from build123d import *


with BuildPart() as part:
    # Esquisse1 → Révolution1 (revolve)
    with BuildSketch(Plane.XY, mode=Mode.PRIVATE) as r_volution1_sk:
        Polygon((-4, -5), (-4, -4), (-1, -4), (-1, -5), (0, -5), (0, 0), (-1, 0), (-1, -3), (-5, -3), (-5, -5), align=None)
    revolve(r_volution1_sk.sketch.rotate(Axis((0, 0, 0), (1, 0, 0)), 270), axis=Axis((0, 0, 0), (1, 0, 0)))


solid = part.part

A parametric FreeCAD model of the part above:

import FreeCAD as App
import Part
import Sketcher
Q = App.Units.Quantity

doc = App.newDocument("Part")
params = doc.addObject("Spreadsheet::Sheet", "Params")
for row, (alias, value) in enumerate([
    ("sketch1_width", "3 mm"),
    ("sketch1_width2", "1 mm"),
    ("sketch1_height", "5 mm"),
    ("revolution_angle", "360 deg"),
], start=1):
    params.set(f"A{row}", alias)
    params.set(f"B{row}", "=" + value)
    params.setAlias(f"B{row}", alias)

body = doc.addObject("PartDesign::Body", "Body")

# Sketch on XY plane
sketch1 = body.newObject("Sketcher::SketchObject", "Sketch")
sketch1.AttachmentSupport = (doc.getObject("XY_Plane"), [""])
sketch1.MapMode = "FlatFace"
sketch1.addGeometry(Part.LineSegment(App.Vector(-4, -5, 0), App.Vector(-4, -4, 0)), False)
sketch1.addGeometry(Part.LineSegment(App.Vector(-4, -4, 0), App.Vector(-1, -4, 0)), False)
sketch1.addGeometry(Part.LineSegment(App.Vector(-1, -4, 0), App.Vector(-1, -5, 0)), False)
sketch1.addGeometry(Part.LineSegment(App.Vector(-1, -5, 0), App.Vector(0, -5, 0)), False)
sketch1.addGeometry(Part.LineSegment(App.Vector(0, -5, 0), App.Vector(0, 0, 0)), False)
sketch1.addGeometry(Part.LineSegment(App.Vector(0, 0, 0), App.Vector(-1, 0, 0)), False)
sketch1.addGeometry(Part.LineSegment(App.Vector(-1, 0, 0), App.Vector(-1, -3, 0)), False)
sketch1.addGeometry(Part.LineSegment(App.Vector(-1, -3, 0), App.Vector(-5, -3, 0)), False)
sketch1.addGeometry(Part.LineSegment(App.Vector(-5, -3, 0), App.Vector(-5, -5, 0)), False)
sketch1.addGeometry(Part.LineSegment(App.Vector(-5, -5, 0), App.Vector(-4, -5, 0)), False)
sketch1.addConstraint(Sketcher.Constraint("Coincident", 0, 2, 1, 1))
sketch1.addConstraint(Sketcher.Constraint("Coincident", 1, 2, 2, 1))
sketch1.addConstraint(Sketcher.Constraint("Coincident", 2, 2, 3, 1))
sketch1.addConstraint(Sketcher.Constraint("Coincident", 3, 2, 4, 1))
sketch1.addConstraint(Sketcher.Constraint("Coincident", 4, 2, 5, 1))
sketch1.addConstraint(Sketcher.Constraint("Coincident", 5, 2, 6, 1))
sketch1.addConstraint(Sketcher.Constraint("Coincident", 6, 2, 7, 1))
sketch1.addConstraint(Sketcher.Constraint("Coincident", 7, 2, 8, 1))
sketch1.addConstraint(Sketcher.Constraint("Coincident", 8, 2, 9, 1))
sketch1.addConstraint(Sketcher.Constraint("Coincident", 9, 2, 0, 1))
sketch1.addConstraint(Sketcher.Constraint("Vertical", 0))
sketch1.addConstraint(Sketcher.Constraint("Horizontal", 1))
sketch1.addConstraint(Sketcher.Constraint("Vertical", 2))
sketch1.addConstraint(Sketcher.Constraint("Horizontal", 3))
sketch1.addConstraint(Sketcher.Constraint("Vertical", 4))
sketch1.addConstraint(Sketcher.Constraint("Horizontal", 5))
sketch1.addConstraint(Sketcher.Constraint("Vertical", 6))
sketch1.addConstraint(Sketcher.Constraint("Horizontal", 7))
sketch1.addConstraint(Sketcher.Constraint("Vertical", 8))
sketch1.addConstraint(Sketcher.Constraint("Horizontal", 9))
sketch1.addConstraint(Sketcher.Constraint("Coincident", 4, 2, -1, 1))
sketch1.addConstraint(Sketcher.Constraint("Horizontal", 3, 2, 8, 2))
sketch1.addConstraint(Sketcher.Constraint("Vertical", 2, 2, 5, 2))
sketch1.addConstraint(Sketcher.Constraint("Equal", 5, 9))
sketch1.addConstraint(Sketcher.Constraint("Equal", 9, 0))
sketch1.addConstraint(Sketcher.Constraint("Equal", 1, 6))
sketch1.addConstraint(Sketcher.Constraint("DistanceX", 1, 1, 1, 2, Q("3 mm")))
sketch1.addConstraint(Sketcher.Constraint("DistanceX", 3, 1, 3, 2, Q("1 mm")))
sketch1.addConstraint(Sketcher.Constraint("DistanceY", 4, 1, 4, 2, Q("5 mm")))
sketch1.setExpression("Constraints[26]", "Params.sketch1_width")
sketch1.setExpression("Constraints[27]", "Params.sketch1_width2")
sketch1.setExpression("Constraints[28]", "Params.sketch1_height")
revolution = body.newObject("PartDesign::Revolution", "Revolution")
revolution.Profile = sketch1
revolution.ReferenceAxis = (sketch1, ["H_Axis"])
revolution.setExpression("Angle", "Params.revolution_angle")

doc.recompute()
